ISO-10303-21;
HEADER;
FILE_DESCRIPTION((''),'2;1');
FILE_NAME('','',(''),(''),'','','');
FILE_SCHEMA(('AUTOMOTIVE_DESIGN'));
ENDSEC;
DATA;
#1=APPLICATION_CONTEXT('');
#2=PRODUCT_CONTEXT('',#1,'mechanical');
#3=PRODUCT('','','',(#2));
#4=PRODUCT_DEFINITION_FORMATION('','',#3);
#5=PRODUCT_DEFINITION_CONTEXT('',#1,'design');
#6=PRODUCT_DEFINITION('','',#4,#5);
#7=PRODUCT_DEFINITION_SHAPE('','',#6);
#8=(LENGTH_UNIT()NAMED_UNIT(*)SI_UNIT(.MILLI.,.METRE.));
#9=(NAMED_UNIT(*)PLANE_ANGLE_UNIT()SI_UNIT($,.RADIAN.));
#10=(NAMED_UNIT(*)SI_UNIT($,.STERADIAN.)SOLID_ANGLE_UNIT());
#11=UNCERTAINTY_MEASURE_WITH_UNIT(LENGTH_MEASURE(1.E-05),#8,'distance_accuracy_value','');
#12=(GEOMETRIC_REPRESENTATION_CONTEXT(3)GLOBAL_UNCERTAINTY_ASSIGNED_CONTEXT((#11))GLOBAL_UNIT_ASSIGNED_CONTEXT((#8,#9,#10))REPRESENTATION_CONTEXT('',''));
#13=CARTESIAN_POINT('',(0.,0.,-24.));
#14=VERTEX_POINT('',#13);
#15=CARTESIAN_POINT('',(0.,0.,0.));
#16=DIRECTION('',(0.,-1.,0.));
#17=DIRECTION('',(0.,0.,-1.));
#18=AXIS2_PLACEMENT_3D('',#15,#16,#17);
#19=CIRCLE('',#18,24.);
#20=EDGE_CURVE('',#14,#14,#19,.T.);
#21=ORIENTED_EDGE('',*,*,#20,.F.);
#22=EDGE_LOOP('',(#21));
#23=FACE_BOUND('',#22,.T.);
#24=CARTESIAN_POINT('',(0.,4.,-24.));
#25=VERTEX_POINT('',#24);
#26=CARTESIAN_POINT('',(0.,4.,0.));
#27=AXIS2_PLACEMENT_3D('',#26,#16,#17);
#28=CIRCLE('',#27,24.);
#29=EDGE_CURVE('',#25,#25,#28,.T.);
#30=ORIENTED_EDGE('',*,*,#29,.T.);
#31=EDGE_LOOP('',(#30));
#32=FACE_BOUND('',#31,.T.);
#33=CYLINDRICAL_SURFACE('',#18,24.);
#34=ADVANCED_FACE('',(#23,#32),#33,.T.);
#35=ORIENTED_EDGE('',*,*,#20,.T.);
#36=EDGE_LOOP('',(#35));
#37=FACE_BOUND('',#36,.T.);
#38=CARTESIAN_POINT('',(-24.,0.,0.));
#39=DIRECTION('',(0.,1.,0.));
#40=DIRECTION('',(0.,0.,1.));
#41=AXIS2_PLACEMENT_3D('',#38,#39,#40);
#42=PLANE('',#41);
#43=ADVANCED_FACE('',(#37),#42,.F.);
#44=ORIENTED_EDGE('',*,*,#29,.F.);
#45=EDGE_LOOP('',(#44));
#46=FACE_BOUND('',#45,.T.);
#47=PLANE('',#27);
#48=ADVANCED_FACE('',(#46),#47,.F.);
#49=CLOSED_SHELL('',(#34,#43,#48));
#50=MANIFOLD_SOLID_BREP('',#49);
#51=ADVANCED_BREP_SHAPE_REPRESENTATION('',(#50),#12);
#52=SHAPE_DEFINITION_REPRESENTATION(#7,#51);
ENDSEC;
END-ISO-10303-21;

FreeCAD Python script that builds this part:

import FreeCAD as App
import Part
import Sketcher

doc = App.newDocument("Part")
body = doc.addObject("PartDesign::Body", "Body")

# Sketch on XY plane
sketch1 = body.newObject("Sketcher::SketchObject", "Sketch")
sketch1.AttachmentSupport = (doc.getObject("XY_Plane"), [""])
sketch1.MapMode = "FlatFace"
sketch1.addGeometry([
    Part.LineSegment(App.Vector(-24, 4, 0), App.Vector(-24, 0, 0)),
    Part.LineSegment(App.Vector(-24, 0, 0), App.Vector(0, 0, 0)),
    Part.LineSegment(App.Vector(0, 0, 0), App.Vector(0, 4, 0)),
    Part.LineSegment(App.Vector(0, 4, 0), App.Vector(-24, 4, 0)),
], False)
sketch1.addConstraint([
    Sketcher.Constraint("Coincident", 0, 2, 1, 1),
    Sketcher.Constraint("Coincident", 1, 2, 2, 1),
    Sketcher.Constraint("Coincident", 2, 2, 3, 1),
    Sketcher.Constraint("Coincident", 3, 2, 0, 1),
    Sketcher.Constraint("Vertical", 0),
    Sketcher.Constraint("Horizontal", 1),
    Sketcher.Constraint("Vertical", 2),
    Sketcher.Constraint("Horizontal", 3),
    Sketcher.Constraint("Coincident", 1, 2, -1, 1),
    Sketcher.Constraint("DistanceX", 1, 1, 1, 2, 24.0),
    Sketcher.Constraint("DistanceY", 0, 2, 0, 1, 4.0),
])
revolution = body.newObject("PartDesign::Revolution", "Revolution")
revolution.Profile = sketch1
revolution.ReferenceAxis = (sketch1, ["V_Axis"])
revolution.Angle = 360

doc.recompute()
